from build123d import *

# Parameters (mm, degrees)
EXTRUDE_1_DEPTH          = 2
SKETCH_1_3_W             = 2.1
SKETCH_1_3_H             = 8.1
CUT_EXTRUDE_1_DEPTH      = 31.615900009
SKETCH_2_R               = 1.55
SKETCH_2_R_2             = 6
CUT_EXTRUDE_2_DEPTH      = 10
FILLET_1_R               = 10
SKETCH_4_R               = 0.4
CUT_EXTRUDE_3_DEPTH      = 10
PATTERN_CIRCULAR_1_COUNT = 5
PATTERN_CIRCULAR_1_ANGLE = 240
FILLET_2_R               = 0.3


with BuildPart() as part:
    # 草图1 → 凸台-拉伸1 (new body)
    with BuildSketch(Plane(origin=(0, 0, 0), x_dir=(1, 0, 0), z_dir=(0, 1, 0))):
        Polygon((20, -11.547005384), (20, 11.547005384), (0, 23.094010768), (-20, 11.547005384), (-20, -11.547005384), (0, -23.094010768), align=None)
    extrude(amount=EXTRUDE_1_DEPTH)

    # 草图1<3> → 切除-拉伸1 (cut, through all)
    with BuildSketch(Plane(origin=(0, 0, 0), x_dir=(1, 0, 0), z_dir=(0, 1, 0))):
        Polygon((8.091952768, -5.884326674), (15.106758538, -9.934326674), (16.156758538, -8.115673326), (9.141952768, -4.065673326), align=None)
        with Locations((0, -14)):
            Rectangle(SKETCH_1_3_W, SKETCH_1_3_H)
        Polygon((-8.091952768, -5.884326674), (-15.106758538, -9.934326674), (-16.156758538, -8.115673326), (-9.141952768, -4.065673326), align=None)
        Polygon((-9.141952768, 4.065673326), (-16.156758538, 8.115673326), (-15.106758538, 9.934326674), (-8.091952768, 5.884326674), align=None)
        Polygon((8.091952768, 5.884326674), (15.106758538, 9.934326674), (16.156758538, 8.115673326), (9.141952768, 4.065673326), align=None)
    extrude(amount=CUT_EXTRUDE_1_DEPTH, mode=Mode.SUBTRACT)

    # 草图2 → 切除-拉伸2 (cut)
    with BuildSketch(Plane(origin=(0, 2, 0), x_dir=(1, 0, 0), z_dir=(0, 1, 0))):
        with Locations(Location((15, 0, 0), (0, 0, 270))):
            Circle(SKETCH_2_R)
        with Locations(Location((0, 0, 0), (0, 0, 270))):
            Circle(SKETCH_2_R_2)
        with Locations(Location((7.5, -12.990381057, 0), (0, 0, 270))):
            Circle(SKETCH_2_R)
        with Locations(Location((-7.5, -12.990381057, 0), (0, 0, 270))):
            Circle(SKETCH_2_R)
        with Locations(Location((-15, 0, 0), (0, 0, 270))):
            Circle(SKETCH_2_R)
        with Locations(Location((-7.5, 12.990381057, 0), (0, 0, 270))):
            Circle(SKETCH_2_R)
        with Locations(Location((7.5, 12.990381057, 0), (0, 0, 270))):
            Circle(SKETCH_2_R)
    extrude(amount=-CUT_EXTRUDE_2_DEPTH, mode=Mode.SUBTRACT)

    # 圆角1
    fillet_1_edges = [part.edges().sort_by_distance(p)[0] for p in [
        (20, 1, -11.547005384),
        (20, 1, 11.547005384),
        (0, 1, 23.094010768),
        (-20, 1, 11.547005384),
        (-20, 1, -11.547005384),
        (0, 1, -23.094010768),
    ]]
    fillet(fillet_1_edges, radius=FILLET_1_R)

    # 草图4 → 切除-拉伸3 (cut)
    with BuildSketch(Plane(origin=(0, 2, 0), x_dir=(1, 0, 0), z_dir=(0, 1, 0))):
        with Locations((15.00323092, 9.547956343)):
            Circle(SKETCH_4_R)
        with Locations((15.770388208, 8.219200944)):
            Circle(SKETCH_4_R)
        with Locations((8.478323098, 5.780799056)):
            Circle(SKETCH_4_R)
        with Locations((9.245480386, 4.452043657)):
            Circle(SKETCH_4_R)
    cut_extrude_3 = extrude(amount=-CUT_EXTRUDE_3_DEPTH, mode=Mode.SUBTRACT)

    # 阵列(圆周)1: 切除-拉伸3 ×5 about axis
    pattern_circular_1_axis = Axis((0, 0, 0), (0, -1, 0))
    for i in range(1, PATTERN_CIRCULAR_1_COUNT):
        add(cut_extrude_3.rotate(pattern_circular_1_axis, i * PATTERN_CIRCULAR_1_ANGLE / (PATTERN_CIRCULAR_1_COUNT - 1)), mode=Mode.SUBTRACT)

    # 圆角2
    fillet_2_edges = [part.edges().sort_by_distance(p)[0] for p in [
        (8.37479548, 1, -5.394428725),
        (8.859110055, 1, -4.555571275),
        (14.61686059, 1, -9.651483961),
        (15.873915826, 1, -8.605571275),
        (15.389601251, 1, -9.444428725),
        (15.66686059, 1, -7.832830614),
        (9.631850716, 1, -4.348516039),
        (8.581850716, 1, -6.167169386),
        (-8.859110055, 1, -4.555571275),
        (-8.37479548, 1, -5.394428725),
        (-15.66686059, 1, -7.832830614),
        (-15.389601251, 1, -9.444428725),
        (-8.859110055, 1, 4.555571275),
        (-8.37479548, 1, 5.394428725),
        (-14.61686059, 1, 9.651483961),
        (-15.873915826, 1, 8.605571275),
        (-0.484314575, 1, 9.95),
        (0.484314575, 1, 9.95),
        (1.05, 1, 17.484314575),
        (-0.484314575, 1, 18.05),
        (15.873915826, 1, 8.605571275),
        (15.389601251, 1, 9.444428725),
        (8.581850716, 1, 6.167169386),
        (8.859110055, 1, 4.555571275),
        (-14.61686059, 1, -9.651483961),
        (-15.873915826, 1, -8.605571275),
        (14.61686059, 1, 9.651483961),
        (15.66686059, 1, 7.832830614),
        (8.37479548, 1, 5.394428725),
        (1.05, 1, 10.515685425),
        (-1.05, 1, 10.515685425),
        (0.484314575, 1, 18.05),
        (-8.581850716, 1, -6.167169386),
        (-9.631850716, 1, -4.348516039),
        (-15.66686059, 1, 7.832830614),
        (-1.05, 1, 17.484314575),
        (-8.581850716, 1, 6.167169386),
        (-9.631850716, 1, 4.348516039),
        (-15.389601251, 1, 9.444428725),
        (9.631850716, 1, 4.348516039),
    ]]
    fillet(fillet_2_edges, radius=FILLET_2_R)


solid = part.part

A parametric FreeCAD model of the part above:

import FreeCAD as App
import Part
import Sketcher
Q = App.Units.Quantity


def edges_at(feature, points):
    """Names of the edges that pass closest to the given points."""
    edges = feature.Shape.Edges
    near = lambda p: min(range(len(edges)), key=lambda i: edges[i].distToShape(Part.Vertex(*p))[0])
    return sorted({f"Edge{near(p) + 1}" for p in points})

doc = App.newDocument("Part")
body = doc.addObject("PartDesign::Body", "Body")

# Sketch on XZ plane
sketch1 = doc.addObject("Sketcher::SketchObject", "Sketch")
body.addObject(sketch1)
sketch1.AttachmentSupport = (doc.XZ_Plane, [""])
sketch1.MapMode = "FlatFace"
sketch1.addGeometry(Part.LineSegment(App.Vector(20, 12, 0), App.Vector(20, -12, 0)), False)
sketch1.addGeometry(Part.LineSegment(App.Vector(20, -12, 0), App.Vector(0, -23, 0)), False)
sketch1.addGeometry(Part.LineSegment(App.Vector(0, -23, 0), App.Vector(-20, -12, 0)), False)
sketch1.addGeometry(Part.LineSegment(App.Vector(-20, -12, 0), App.Vector(-20, 12, 0)), False)
sketch1.addGeometry(Part.LineSegment(App.Vector(-20, 12, 0), App.Vector(0, 23, 0)), False)
sketch1.addGeometry(Part.LineSegment(App.Vector(0, 23, 0), App.Vector(20, 12, 0)), False)
sketch1.addConstraint(Sketcher.Constraint("Coincident", 0, 2, 1, 1))
sketch1.addConstraint(Sketcher.Constraint("Coincident", 1, 2, 2, 1))
sketch1.addConstraint(Sketcher.Constraint("Coincident", 2, 2, 3, 1))
sketch1.addConstraint(Sketcher.Constraint("Coincident", 3, 2, 4, 1))
sketch1.addConstraint(Sketcher.Constraint("Coincident", 4, 2, 5, 1))
sketch1.addConstraint(Sketcher.Constraint("Coincident", 5, 2, 0, 1))
sketch1.addConstraint(Sketcher.Constraint("Vertical", 0))
sketch1.addConstraint(Sketcher.Constraint("Vertical", 3))
sketch1.addConstraint(Sketcher.Constraint("Symmetric", 0, 2, 3, 2, -1, 1))
sketch1.addConstraint(Sketcher.Constraint("Symmetric", 1, 2, 4, 2, -1, 1))
sketch1.addConstraint(Sketcher.Constraint("PointOnObject", 1, 2, -2))
sketch1.addConstraint(Sketcher.Constraint("Parallel", 2, 5))
sketch1.addConstraint(Sketcher.Constraint("Horizontal", 0, 2, 2, 2))
sketch1.addConstraint(Sketcher.Constraint("Angle", 1, Q("-150 deg")))
sketch1.addConstraint(Sketcher.Constraint("DistanceX", -1, 1, 0, 2, 20.0))
sketch1.addConstraint(Sketcher.Constraint("DistanceY", 0, 2, 0, 1, 23.094011))
pad1 = doc.addObject("PartDesign::Pad", "Pad")
body.addObject(pad1)
pad1.Profile = sketch1
pad1.Length = 2
pad1.Reversed = True

# Sketch on XZ plane
sketch2 = doc.addObject("Sketcher::SketchObject", "Sketch001")
body.addObject(sketch2)
sketch2.AttachmentSupport = (doc.XZ_Plane, [""])
sketch2.MapMode = "FlatFace"
sketch2.addGeometry(Part.LineSegment(App.Vector(8.1, 5.9, 0), App.Vector(15.1, 9.9, 0)), False)
sketch2.addGeometry(Part.LineSegment(App.Vector(15.1, 9.9, 0), App.Vector(16.2, 8.1, 0)), False)
sketch2.addGeometry(Part.LineSegment(App.Vector(16.2, 8.1, 0), App.Vector(9.1, 4.1, 0)), False)
sketch2.addGeometry(Part.LineSegment(App.Vector(9.1, 4.1, 0), App.Vector(8.1, 5.9, 0)), False)
sketch2.addGeometry(Part.LineSegment(App.Vector(-1.1, 9.9, 0), App.Vector(-1.1, 18.1, 0)), False)
sketch2.addGeometry(Part.LineSegment(App.Vector(-1.1, 18.1, 0), App.Vector(1.1, 18.1, 0)), False)
sketch2.addGeometry(Part.LineSegment(App.Vector(1.1, 18.1, 0), App.Vector(1.1, 9.9, 0)), False)
sketch2.addGeometry(Part.LineSegment(App.Vector(1.1, 9.9, 0), App.Vector(-1.1, 9.9, 0)), False)
sketch2.addGeometry(Part.LineSegment(App.Vector(-15.1, 9.9, 0), App.Vector(-8.1, 5.9, 0)), False)
sketch2.addGeometry(Part.LineSegment(App.Vector(-8.1, 5.9, 0), App.Vector(-9.1, 4.1, 0)), False)
sketch2.addGeometry(Part.LineSegment(App.Vector(-9.1, 4.1, 0), App.Vector(-16.2, 8.1, 0)), False)
sketch2.addGeometry(Part.LineSegment(App.Vector(-16.2, 8.1, 0), App.Vector(-15.1, 9.9, 0)), False)
sketch2.addGeometry(Part.LineSegment(App.Vector(-16.2, -8.1, 0), App.Vector(-9.1, -4.1, 0)), False)
sketch2.addGeometry(Part.LineSegment(App.Vector(-9.1, -4.1, 0), App.Vector(-8.1, -5.9, 0)), False)
sketch2.addGeometry(Part.LineSegment(App.Vector(-8.1, -5.9, 0), App.Vector(-15.1, -9.9, 0)), False)
sketch2.addGeometry(Part.LineSegment(App.Vector(-15.1, -9.9, 0), App.Vector(-16.2, -8.1, 0)), False)
sketch2.addGeometry(Part.LineSegment(App.Vector(15.1, -9.9, 0), App.Vector(8.1, -5.9, 0)), False)
sketch2.addGeometry(Part.LineSegment(App.Vector(8.1, -5.9, 0), App.Vector(9.1, -4.1, 0)), False)
sketch2.addGeometry(Part.LineSegment(App.Vector(9.1, -4.1, 0), App.Vector(16.2, -8.1, 0)), False)
sketch2.addGeometry(Part.LineSegment(App.Vector(16.2, -8.1, 0), App.Vector(15.1, -9.9, 0)), False)
sketch2.addConstraint(Sketcher.Constraint("Coincident", 0, 2, 1, 1))
sketch2.addConstraint(Sketcher.Constraint("Coincident", 1, 2, 2, 1))
sketch2.addConstraint(Sketcher.Constraint("Coincident", 2, 2, 3, 1))
sketch2.addConstraint(Sketcher.Constraint("Coincident", 3, 2, 0, 1))
sketch2.addConstraint(Sketcher.Constraint("Coincident", 4, 2, 5, 1))
sketch2.addConstraint(Sketcher.Constraint("Coincident", 5, 2, 6, 1))
sketch2.addConstraint(Sketcher.Constraint("Coincident", 6, 2, 7, 1))
sketch2.addConstraint(Sketcher.Constraint("Coincident", 7, 2, 4, 1))
sketch2.addConstraint(Sketcher.Constraint("Coincident", 8, 2, 9, 1))
sketch2.addConstraint(Sketcher.Constraint("Coincident", 9, 2, 10, 1))
sketch2.addConstraint(Sketcher.Constraint("Coincident", 10, 2, 11, 1))
sketch2.addConstraint(Sketcher.Constraint("Coincident", 11, 2, 8, 1))
sketch2.addConstraint(Sketcher.Constraint("Coincident", 12, 2, 13, 1))
sketch2.addConstraint(Sketcher.Constraint("Coincident", 13, 2, 14, 1))
sketch2.addConstraint(Sketcher.Constraint("Coincident", 14, 2, 15, 1))
sketch2.addConstraint(Sketcher.Constraint("Coincident", 15, 2, 12, 1))
sketch2.addConstraint(Sketcher.Constraint("Coincident", 16, 2, 17, 1))
sketch2.addConstraint(Sketcher.Constraint("Coincident", 17, 2, 18, 1))
sketch2.addConstraint(Sketcher.Constraint("Coincident", 18, 2, 19, 1))
sketch2.addConstraint(Sketcher.Constraint("Coincident", 19, 2, 16, 1))
sketch2.addConstraint(Sketcher.Constraint("Vertical", 4))
sketch2.addConstraint(Sketcher.Constraint("Horizontal", 5))
sketch2.addConstraint(Sketcher.Constraint("Vertical", 6))
sketch2.addConstraint(Sketcher.Constraint("Horizontal", 7))
sketch2.addConstraint(Sketcher.Constraint("Symmetric", 2, 2, 12, 2, -1, 1))
sketch2.addConstraint(Sketcher.Constraint("Symmetric", 3, 2, 13, 2, -1, 1))
sketch2.addConstraint(Sketcher.Constraint("Symmetric", 0, 2, 14, 2, -1, 1))
sketch2.addConstraint(Sketcher.Constraint("Symmetric", 1, 2, 15, 2, -1, 1))
sketch2.addConstraint(Sketcher.Constraint("Symmetric", 8, 2, 16, 2, -1, 1))
sketch2.addConstraint(Sketcher.Constraint("Symmetric", 9, 2, 17, 2, -1, 1))
sketch2.addConstraint(Sketcher.Constraint("Symmetric", 10, 2, 18, 2, -1, 1))
sketch2.addConstraint(Sketcher.Constraint("Symmetric", 11, 2, 19, 2, -1, 1))
sketch2.addConstraint(Sketcher.Constraint("Symmetric", 3, 2, 8, 2, -2))
sketch2.addConstraint(Sketcher.Constraint("Symmetric", 2, 2, 9, 2, -2))
sketch2.addConstraint(Sketcher.Constraint("Symmetric", 1, 2, 10, 2, -2))
sketch2.addConstraint(Sketcher.Constraint("Symmetric", 0, 2, 11, 2, -2))
sketch2.addConstraint(Sketcher.Constraint("Perpendicular", 0, 1))
sketch2.addConstraint(Sketcher.Constraint("Perpendicular", 1, 2))
sketch2.addConstraint(Sketcher.Constraint("Perpendicular", 2, 3))
sketch2.addConstraint(Sketcher.Constraint("Angle", 0, Q("30 deg")))
sketch2.addConstraint(Sketcher.Constraint("DistanceX", 5, 1, 5, 2, 2.1))
sketch2.addConstraint(Sketcher.Constraint("DistanceY", 4, 1, 4, 2, 8.1))
sketch2.addConstraint(Sketcher.Constraint("DistanceY", 12, 2, 11, 2, 14.0))
sketch2.addConstraint(Sketcher.Constraint("Distance", 0, 8.1))
sketch2.addConstraint(Sketcher.Constraint("Distance", 1, 2.1))
sketch2.addConstraint(Sketcher.Constraint("DistanceX", 4, 2, -1, 1, 1.05))
sketch2.addConstraint(Sketcher.Constraint("DistanceY", -1, 1, 4, 2, 18.05))
sketch2.addConstraint(Sketcher.Constraint("DistanceX", -1, 1, 0, 2, 15.106759))
pocket1 = doc.addObject("PartDesign::Pocket", "Pocket")
body.addObject(pocket1)
pocket1.Profile = sketch2
pocket1.Type = "ThroughAll"

# Sketch on XZ plane
sketch3 = doc.addObject("Sketcher::SketchObject", "Sketch002")
body.addObject(sketch3)
sketch3.AttachmentSupport = (doc.XZ_Plane, [""])
sketch3.MapMode = "FlatFace"
sketch3.AttachmentOffset = App.Placement(App.Vector(0, 0, -2), App.Rotation())
sketch3.addGeometry(Part.Circle(App.Vector(15, 0, 0), App.Vector(0, 0, 1), 1.6), False)
sketch3.addGeometry(Part.Circle(App.Vector(0, 0, 0), App.Vector(0, 0, 1), 6), False)
sketch3.addGeometry(Part.Circle(App.Vector(7.5, 13, 0), App.Vector(0, 0, 1), 1.6), False)
sketch3.addGeometry(Part.Circle(App.Vector(-7.5, 13, 0), App.Vector(0, 0, 1), 1.6), False)
sketch3.addGeometry(Part.Circle(App.Vector(-15, 0, 0), App.Vector(0, 0, 1), 1.6), False)
sketch3.addGeometry(Part.Circle(App.Vector(-7.5, -13, 0), App.Vector(0, 0, 1), 1.6), False)
sketch3.addGeometry(Part.Circle(App.Vector(7.5, -13, 0), App.Vector(0, 0, 1), 1.6), False)
sketch3.addConstraint(Sketcher.Constraint("Coincident", 1, 3, -1, 1))
sketch3.addConstraint(Sketcher.Constraint("Equal", 0, 2))
sketch3.addConstraint(Sketcher.Constraint("Equal", 2, 3))
sketch3.addConstraint(Sketcher.Constraint("Equal", 3, 4))
sketch3.addConstraint(Sketcher.Constraint("Equal", 4, 5))
sketch3.addConstraint(Sketcher.Constraint("Equal", 5, 6))
sketch3.addConstraint(Sketcher.Constraint("Symmetric", 0, 3, 4, 3, -1, 1))
sketch3.addConstraint(Sketcher.Constraint("Symmetric", 2, 3, 5, 3, -1, 1))
sketch3.addConstraint(Sketcher.Constraint("Symmetric", 3, 3, 6, 3, -1, 1))
sketch3.addConstraint(Sketcher.Constraint("Symmetric", 2, 3, 3, 3, -2))
sketch3.addConstraint(Sketcher.Constraint("PointOnObject", 0, 3, -1))
sketch3.addConstraint(Sketcher.Constraint("Diameter", 1, 12.0))
sketch3.addConstraint(Sketcher.Constraint("Diameter", 0, 3.1))
sketch3.addConstraint(Sketcher.Constraint("DistanceX", -1, 1, 0, 3, 15.0))
sketch3.addConstraint(Sketcher.Constraint("DistanceX", 3, 3, 2, 3, 15.0))
sketch3.addConstraint(Sketcher.Constraint("DistanceY", -1, 1, 2, 3, 12.990381))
pocket2 = doc.addObject("PartDesign::Pocket", "Pocket001")
body.addObject(pocket2)
pocket2.Profile = sketch3
pocket2.Length = 10
pocket2.Reversed = True
doc.recompute()

fillet = doc.addObject("PartDesign::Fillet", "Fillet")
body.addObject(fillet)
fillet.Base = (pocket2, edges_at(pocket2, [
    (20, 1, -11.547),
    (20, 1, 11.547),
    (0, 1, 23.094),
    (-20, 1, 11.547),
    (-20, 1, -11.547),
    (0, 1, -23.094),
]))
fillet.Radius = 10

# Sketch on XZ plane
sketch4 = doc.addObject("Sketcher::SketchObject", "Sketch003")
body.addObject(sketch4)
sketch4.AttachmentSupport = (doc.XZ_Plane, [""])
sketch4.MapMode = "FlatFace"
sketch4.AttachmentOffset = App.Placement(App.Vector(0, 0, -2), App.Rotation())
sketch4.addGeometry(Part.Circle(App.Vector(15, -9.55, 0), App.Vector(0, 0, 1), 0.4), False)
sketch4.addGeometry(Part.Circle(App.Vector(15.77, -8.22, 0), App.Vector(0, 0, 1), 0.4), False)
sketch4.addGeometry(Part.Circle(App.Vector(8.48, -5.78, 0), App.Vector(0, 0, 1), 0.4), False)
sketch4.addGeometry(Part.Circle(App.Vector(9.25, -4.45, 0), App.Vector(0, 0, 1), 0.4), False)
sketch4.addConstraint(Sketcher.Constraint("Equal", 0, 1))
sketch4.addConstraint(Sketcher.Constraint("Equal", 1, 2))
sketch4.addConstraint(Sketcher.Constraint("Equal", 2, 3))
sketch4.addConstraint(Sketcher.Constraint("Diameter", 0, 0.8))
sketch4.addConstraint(Sketcher.Constraint("DistanceY", 1, 3, -1, 1, 8.219201))
sketch4.addConstraint(Sketcher.Constraint("DistanceY", 2, 3, -1, 1, 5.780799))
sketch4.addConstraint(Sketcher.Constraint("DistanceX", -1, 1, 0, 3, 15.003231))
sketch4.addConstraint(Sketcher.Constraint("DistanceX", -1, 1, 1, 3, 15.770388))
sketch4.addConstraint(Sketcher.Constraint("DistanceX", -1, 1, 3, 3, 9.24548))
sketch4.addConstraint(Sketcher.Constraint("DistanceY", 0, 3, -1, 1, 9.547956))
sketch4.addConstraint(Sketcher.Constraint("DistanceX", -1, 1, 2, 3, 8.478323))
sketch4.addConstraint(Sketcher.Constraint("DistanceY", 3, 3, -1, 1, 4.452044))
pocket3 = doc.addObject("PartDesign::Pocket", "Pocket002")
body.addObject(pocket3)
pocket3.Profile = sketch4
pocket3.Length = 10
pocket3.Reversed = True
doc.recompute()

polarpattern = doc.addObject("PartDesign::PolarPattern", "PolarPattern")
body.addObject(polarpattern)
polarpattern.Originals = [pocket3]
polarpattern.Axis = (doc.Y_Axis, [""])
polarpattern.Angle = 240
polarpattern.Occurrences = 5
polarpattern.Reversed = True
body.Tip = polarpattern
doc.recompute()

fillet2 = doc.addObject("PartDesign::Fillet", "Fillet001")
body.addObject(fillet2)
fillet2.Base = (polarpattern, edges_at(polarpattern, [
    (8.375, 1, -5.394),
    (8.859, 1, -4.556),
    (14.617, 1, -9.651),
    (15.874, 1, -8.606),
    (15.39, 1, -9.444),
    (15.667, 1, -7.833),
    (9.632, 1, -4.349),
    (8.582, 1, -6.167),
    (-8.859, 1, -4.556),
    (-8.375, 1, -5.394),
    (-15.667, 1, -7.833),
    (-15.39, 1, -9.444),
    (-8.859, 1, 4.556),
    (-8.375, 1, 5.394),
    (-14.617, 1, 9.651),
    (-15.874, 1, 8.606),
    (-0.484, 1, 9.95),
    (0.484, 1, 9.95),
    (1.05, 1, 17.484),
    (-0.484, 1, 18.05),
    (15.874, 1, 8.606),
    (15.39, 1, 9.444),
    (8.582, 1, 6.167),
    (8.859, 1, 4.556),
    (-14.617, 1, -9.651),
    (-15.874, 1, -8.606),
    (14.617, 1, 9.651),
    (15.667, 1, 7.833),
    (8.375, 1, 5.394),
    (1.05, 1, 10.516),
    (-1.05, 1, 10.516),
    (0.484, 1, 18.05),
    (-8.582, 1, -6.167),
    (-9.632, 1, -4.349),
    (-15.667, 1, 7.833),
    (-1.05, 1, 17.484),
    (-8.582, 1, 6.167),
    (-9.632, 1, 4.349),
    (-15.39, 1, 9.444),
    (9.632, 1, 4.349),
]))
fillet2.Radius = 0.3

doc.recompute()
